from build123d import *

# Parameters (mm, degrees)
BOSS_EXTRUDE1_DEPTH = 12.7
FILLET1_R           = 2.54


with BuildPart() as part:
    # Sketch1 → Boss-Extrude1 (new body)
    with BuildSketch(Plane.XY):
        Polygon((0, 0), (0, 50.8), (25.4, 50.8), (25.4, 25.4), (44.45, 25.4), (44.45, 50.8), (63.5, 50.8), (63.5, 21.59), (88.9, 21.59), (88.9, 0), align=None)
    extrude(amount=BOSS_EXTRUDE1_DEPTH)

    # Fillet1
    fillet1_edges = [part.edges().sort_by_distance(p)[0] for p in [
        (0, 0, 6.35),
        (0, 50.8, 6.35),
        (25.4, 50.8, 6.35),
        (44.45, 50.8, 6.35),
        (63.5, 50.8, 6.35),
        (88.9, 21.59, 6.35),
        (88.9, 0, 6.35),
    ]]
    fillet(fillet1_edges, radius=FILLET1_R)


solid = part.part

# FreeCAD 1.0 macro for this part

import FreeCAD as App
import Part
import Sketcher

V = App.Vector
Q = App.Units.Quantity


def edges_at(feature, points):
    """Names of the edges that pass closest to the given points."""
    edges = feature.Shape.Edges
    near = lambda p: min(range(len(edges)), key=lambda i: edges[i].distToShape(Part.Vertex(*p))[0])
    return sorted({f"Edge{near(p) + 1}" for p in points})

doc = App.newDocument("Part")
body = doc.addObject("PartDesign::Body", "Body")

# Sketch on XY plane
sketch1 = body.newObject("Sketcher::SketchObject", "Sketch")
sketch1.AttachmentSupport = (doc.getObject("XY_Plane"), [""])
sketch1.MapMode = "FlatFace"
sketch1.addGeometry([
    Part.LineSegment(V(0, 50.8, 0), V(0, 0, 0)),  # 0
    Part.LineSegment(V(0, 0, 0), V(88.9, 0, 0)),  # 1
    Part.LineSegment(V(88.9, 0, 0), V(88.9, 21.59, 0)),  # 2
    Part.LineSegment(V(88.9, 21.59, 0), V(63.5, 21.59, 0)),  # 3
    Part.LineSegment(V(63.5, 21.59, 0), V(63.5, 50.8, 0)),  # 4
    Part.LineSegment(V(63.5, 50.8, 0), V(44.45, 50.8, 0)),  # 5
    Part.LineSegment(V(44.45, 50.8, 0), V(44.45, 25.4, 0)),  # 6
    Part.LineSegment(V(44.45, 25.4, 0), V(25.4, 25.4, 0)),  # 7
    Part.LineSegment(V(25.4, 25.4, 0), V(25.4, 50.8, 0)),  # 8
    Part.LineSegment(V(25.4, 50.8, 0), V(0, 50.8, 0)),  # 9
], False)
sketch1.addConstraint([
    Sketcher.Constraint("Coincident", 0, 2, 1, 1),
    Sketcher.Constraint("Coincident", 1, 2, 2, 1),
    Sketcher.Constraint("Coincident", 2, 2, 3, 1),
    Sketcher.Constraint("Coincident", 3, 2, 4, 1),
    Sketcher.Constraint("Coincident", 4, 2, 5, 1),
    Sketcher.Constraint("Coincident", 5, 2, 6, 1),
    Sketcher.Constraint("Coincident", 6, 2, 7, 1),
    Sketcher.Constraint("Coincident", 7, 2, 8, 1),
    Sketcher.Constraint("Coincident", 8, 2, 9, 1),
    Sketcher.Constraint("Coincident", 9, 2, 0, 1),
    Sketcher.Constraint("Vertical", 0),
    Sketcher.Constraint("Horizontal", 1),
    Sketcher.Constraint("Vertical", 2),
    Sketcher.Constraint("Horizontal", 3),
    Sketcher.Constraint("Vertical", 4),
    Sketcher.Constraint("Horizontal", 5),
    Sketcher.Constraint("Vertical", 6),
    Sketcher.Constraint("Horizontal", 7),
    Sketcher.Constraint("Vertical", 8),
    Sketcher.Constraint("Horizontal", 9),
    Sketcher.Constraint("Coincident", 0, 2, -1, 1),
    Sketcher.Constraint("Horizontal", 5, 2, 8, 2),
    Sketcher.Constraint("Equal", 5, 7),
    Sketcher.Constraint("Equal", 3, 9),
    Sketcher.Constraint("Equal", 9, 6),
    Sketcher.Constraint("DistanceX", 3, 2, 3, 1, Q("1 in")),
    Sketcher.Constraint("DistanceY", 0, 2, 0, 1, Q("2 in")),
    Sketcher.Constraint("DistanceX", 1, 1, 1, 2, Q("3.5 in")),
    Sketcher.Constraint("DistanceY", 2, 1, 2, 2, Q("0.85 in")),
])
pad1 = body.newObject("PartDesign::Pad", "Pad")
pad1.Profile = sketch1
pad1.Length = Q("0.5 in")
doc.recompute()

fillet = body.newObject("PartDesign::Fillet", "Fillet")
fillet.Base = (pad1, edges_at(pad1, [
    (0, 0, 6.35),
    (0, 50.8, 6.35),
    (25.4, 50.8, 6.35),
    (44.45, 50.8, 6.35),
    (63.5, 50.8, 6.35),
    (88.9, 21.59, 6.35),
    (88.9, 0, 6.35),
]))
fillet.Radius = Q("0.1 in")

doc.recompute()
